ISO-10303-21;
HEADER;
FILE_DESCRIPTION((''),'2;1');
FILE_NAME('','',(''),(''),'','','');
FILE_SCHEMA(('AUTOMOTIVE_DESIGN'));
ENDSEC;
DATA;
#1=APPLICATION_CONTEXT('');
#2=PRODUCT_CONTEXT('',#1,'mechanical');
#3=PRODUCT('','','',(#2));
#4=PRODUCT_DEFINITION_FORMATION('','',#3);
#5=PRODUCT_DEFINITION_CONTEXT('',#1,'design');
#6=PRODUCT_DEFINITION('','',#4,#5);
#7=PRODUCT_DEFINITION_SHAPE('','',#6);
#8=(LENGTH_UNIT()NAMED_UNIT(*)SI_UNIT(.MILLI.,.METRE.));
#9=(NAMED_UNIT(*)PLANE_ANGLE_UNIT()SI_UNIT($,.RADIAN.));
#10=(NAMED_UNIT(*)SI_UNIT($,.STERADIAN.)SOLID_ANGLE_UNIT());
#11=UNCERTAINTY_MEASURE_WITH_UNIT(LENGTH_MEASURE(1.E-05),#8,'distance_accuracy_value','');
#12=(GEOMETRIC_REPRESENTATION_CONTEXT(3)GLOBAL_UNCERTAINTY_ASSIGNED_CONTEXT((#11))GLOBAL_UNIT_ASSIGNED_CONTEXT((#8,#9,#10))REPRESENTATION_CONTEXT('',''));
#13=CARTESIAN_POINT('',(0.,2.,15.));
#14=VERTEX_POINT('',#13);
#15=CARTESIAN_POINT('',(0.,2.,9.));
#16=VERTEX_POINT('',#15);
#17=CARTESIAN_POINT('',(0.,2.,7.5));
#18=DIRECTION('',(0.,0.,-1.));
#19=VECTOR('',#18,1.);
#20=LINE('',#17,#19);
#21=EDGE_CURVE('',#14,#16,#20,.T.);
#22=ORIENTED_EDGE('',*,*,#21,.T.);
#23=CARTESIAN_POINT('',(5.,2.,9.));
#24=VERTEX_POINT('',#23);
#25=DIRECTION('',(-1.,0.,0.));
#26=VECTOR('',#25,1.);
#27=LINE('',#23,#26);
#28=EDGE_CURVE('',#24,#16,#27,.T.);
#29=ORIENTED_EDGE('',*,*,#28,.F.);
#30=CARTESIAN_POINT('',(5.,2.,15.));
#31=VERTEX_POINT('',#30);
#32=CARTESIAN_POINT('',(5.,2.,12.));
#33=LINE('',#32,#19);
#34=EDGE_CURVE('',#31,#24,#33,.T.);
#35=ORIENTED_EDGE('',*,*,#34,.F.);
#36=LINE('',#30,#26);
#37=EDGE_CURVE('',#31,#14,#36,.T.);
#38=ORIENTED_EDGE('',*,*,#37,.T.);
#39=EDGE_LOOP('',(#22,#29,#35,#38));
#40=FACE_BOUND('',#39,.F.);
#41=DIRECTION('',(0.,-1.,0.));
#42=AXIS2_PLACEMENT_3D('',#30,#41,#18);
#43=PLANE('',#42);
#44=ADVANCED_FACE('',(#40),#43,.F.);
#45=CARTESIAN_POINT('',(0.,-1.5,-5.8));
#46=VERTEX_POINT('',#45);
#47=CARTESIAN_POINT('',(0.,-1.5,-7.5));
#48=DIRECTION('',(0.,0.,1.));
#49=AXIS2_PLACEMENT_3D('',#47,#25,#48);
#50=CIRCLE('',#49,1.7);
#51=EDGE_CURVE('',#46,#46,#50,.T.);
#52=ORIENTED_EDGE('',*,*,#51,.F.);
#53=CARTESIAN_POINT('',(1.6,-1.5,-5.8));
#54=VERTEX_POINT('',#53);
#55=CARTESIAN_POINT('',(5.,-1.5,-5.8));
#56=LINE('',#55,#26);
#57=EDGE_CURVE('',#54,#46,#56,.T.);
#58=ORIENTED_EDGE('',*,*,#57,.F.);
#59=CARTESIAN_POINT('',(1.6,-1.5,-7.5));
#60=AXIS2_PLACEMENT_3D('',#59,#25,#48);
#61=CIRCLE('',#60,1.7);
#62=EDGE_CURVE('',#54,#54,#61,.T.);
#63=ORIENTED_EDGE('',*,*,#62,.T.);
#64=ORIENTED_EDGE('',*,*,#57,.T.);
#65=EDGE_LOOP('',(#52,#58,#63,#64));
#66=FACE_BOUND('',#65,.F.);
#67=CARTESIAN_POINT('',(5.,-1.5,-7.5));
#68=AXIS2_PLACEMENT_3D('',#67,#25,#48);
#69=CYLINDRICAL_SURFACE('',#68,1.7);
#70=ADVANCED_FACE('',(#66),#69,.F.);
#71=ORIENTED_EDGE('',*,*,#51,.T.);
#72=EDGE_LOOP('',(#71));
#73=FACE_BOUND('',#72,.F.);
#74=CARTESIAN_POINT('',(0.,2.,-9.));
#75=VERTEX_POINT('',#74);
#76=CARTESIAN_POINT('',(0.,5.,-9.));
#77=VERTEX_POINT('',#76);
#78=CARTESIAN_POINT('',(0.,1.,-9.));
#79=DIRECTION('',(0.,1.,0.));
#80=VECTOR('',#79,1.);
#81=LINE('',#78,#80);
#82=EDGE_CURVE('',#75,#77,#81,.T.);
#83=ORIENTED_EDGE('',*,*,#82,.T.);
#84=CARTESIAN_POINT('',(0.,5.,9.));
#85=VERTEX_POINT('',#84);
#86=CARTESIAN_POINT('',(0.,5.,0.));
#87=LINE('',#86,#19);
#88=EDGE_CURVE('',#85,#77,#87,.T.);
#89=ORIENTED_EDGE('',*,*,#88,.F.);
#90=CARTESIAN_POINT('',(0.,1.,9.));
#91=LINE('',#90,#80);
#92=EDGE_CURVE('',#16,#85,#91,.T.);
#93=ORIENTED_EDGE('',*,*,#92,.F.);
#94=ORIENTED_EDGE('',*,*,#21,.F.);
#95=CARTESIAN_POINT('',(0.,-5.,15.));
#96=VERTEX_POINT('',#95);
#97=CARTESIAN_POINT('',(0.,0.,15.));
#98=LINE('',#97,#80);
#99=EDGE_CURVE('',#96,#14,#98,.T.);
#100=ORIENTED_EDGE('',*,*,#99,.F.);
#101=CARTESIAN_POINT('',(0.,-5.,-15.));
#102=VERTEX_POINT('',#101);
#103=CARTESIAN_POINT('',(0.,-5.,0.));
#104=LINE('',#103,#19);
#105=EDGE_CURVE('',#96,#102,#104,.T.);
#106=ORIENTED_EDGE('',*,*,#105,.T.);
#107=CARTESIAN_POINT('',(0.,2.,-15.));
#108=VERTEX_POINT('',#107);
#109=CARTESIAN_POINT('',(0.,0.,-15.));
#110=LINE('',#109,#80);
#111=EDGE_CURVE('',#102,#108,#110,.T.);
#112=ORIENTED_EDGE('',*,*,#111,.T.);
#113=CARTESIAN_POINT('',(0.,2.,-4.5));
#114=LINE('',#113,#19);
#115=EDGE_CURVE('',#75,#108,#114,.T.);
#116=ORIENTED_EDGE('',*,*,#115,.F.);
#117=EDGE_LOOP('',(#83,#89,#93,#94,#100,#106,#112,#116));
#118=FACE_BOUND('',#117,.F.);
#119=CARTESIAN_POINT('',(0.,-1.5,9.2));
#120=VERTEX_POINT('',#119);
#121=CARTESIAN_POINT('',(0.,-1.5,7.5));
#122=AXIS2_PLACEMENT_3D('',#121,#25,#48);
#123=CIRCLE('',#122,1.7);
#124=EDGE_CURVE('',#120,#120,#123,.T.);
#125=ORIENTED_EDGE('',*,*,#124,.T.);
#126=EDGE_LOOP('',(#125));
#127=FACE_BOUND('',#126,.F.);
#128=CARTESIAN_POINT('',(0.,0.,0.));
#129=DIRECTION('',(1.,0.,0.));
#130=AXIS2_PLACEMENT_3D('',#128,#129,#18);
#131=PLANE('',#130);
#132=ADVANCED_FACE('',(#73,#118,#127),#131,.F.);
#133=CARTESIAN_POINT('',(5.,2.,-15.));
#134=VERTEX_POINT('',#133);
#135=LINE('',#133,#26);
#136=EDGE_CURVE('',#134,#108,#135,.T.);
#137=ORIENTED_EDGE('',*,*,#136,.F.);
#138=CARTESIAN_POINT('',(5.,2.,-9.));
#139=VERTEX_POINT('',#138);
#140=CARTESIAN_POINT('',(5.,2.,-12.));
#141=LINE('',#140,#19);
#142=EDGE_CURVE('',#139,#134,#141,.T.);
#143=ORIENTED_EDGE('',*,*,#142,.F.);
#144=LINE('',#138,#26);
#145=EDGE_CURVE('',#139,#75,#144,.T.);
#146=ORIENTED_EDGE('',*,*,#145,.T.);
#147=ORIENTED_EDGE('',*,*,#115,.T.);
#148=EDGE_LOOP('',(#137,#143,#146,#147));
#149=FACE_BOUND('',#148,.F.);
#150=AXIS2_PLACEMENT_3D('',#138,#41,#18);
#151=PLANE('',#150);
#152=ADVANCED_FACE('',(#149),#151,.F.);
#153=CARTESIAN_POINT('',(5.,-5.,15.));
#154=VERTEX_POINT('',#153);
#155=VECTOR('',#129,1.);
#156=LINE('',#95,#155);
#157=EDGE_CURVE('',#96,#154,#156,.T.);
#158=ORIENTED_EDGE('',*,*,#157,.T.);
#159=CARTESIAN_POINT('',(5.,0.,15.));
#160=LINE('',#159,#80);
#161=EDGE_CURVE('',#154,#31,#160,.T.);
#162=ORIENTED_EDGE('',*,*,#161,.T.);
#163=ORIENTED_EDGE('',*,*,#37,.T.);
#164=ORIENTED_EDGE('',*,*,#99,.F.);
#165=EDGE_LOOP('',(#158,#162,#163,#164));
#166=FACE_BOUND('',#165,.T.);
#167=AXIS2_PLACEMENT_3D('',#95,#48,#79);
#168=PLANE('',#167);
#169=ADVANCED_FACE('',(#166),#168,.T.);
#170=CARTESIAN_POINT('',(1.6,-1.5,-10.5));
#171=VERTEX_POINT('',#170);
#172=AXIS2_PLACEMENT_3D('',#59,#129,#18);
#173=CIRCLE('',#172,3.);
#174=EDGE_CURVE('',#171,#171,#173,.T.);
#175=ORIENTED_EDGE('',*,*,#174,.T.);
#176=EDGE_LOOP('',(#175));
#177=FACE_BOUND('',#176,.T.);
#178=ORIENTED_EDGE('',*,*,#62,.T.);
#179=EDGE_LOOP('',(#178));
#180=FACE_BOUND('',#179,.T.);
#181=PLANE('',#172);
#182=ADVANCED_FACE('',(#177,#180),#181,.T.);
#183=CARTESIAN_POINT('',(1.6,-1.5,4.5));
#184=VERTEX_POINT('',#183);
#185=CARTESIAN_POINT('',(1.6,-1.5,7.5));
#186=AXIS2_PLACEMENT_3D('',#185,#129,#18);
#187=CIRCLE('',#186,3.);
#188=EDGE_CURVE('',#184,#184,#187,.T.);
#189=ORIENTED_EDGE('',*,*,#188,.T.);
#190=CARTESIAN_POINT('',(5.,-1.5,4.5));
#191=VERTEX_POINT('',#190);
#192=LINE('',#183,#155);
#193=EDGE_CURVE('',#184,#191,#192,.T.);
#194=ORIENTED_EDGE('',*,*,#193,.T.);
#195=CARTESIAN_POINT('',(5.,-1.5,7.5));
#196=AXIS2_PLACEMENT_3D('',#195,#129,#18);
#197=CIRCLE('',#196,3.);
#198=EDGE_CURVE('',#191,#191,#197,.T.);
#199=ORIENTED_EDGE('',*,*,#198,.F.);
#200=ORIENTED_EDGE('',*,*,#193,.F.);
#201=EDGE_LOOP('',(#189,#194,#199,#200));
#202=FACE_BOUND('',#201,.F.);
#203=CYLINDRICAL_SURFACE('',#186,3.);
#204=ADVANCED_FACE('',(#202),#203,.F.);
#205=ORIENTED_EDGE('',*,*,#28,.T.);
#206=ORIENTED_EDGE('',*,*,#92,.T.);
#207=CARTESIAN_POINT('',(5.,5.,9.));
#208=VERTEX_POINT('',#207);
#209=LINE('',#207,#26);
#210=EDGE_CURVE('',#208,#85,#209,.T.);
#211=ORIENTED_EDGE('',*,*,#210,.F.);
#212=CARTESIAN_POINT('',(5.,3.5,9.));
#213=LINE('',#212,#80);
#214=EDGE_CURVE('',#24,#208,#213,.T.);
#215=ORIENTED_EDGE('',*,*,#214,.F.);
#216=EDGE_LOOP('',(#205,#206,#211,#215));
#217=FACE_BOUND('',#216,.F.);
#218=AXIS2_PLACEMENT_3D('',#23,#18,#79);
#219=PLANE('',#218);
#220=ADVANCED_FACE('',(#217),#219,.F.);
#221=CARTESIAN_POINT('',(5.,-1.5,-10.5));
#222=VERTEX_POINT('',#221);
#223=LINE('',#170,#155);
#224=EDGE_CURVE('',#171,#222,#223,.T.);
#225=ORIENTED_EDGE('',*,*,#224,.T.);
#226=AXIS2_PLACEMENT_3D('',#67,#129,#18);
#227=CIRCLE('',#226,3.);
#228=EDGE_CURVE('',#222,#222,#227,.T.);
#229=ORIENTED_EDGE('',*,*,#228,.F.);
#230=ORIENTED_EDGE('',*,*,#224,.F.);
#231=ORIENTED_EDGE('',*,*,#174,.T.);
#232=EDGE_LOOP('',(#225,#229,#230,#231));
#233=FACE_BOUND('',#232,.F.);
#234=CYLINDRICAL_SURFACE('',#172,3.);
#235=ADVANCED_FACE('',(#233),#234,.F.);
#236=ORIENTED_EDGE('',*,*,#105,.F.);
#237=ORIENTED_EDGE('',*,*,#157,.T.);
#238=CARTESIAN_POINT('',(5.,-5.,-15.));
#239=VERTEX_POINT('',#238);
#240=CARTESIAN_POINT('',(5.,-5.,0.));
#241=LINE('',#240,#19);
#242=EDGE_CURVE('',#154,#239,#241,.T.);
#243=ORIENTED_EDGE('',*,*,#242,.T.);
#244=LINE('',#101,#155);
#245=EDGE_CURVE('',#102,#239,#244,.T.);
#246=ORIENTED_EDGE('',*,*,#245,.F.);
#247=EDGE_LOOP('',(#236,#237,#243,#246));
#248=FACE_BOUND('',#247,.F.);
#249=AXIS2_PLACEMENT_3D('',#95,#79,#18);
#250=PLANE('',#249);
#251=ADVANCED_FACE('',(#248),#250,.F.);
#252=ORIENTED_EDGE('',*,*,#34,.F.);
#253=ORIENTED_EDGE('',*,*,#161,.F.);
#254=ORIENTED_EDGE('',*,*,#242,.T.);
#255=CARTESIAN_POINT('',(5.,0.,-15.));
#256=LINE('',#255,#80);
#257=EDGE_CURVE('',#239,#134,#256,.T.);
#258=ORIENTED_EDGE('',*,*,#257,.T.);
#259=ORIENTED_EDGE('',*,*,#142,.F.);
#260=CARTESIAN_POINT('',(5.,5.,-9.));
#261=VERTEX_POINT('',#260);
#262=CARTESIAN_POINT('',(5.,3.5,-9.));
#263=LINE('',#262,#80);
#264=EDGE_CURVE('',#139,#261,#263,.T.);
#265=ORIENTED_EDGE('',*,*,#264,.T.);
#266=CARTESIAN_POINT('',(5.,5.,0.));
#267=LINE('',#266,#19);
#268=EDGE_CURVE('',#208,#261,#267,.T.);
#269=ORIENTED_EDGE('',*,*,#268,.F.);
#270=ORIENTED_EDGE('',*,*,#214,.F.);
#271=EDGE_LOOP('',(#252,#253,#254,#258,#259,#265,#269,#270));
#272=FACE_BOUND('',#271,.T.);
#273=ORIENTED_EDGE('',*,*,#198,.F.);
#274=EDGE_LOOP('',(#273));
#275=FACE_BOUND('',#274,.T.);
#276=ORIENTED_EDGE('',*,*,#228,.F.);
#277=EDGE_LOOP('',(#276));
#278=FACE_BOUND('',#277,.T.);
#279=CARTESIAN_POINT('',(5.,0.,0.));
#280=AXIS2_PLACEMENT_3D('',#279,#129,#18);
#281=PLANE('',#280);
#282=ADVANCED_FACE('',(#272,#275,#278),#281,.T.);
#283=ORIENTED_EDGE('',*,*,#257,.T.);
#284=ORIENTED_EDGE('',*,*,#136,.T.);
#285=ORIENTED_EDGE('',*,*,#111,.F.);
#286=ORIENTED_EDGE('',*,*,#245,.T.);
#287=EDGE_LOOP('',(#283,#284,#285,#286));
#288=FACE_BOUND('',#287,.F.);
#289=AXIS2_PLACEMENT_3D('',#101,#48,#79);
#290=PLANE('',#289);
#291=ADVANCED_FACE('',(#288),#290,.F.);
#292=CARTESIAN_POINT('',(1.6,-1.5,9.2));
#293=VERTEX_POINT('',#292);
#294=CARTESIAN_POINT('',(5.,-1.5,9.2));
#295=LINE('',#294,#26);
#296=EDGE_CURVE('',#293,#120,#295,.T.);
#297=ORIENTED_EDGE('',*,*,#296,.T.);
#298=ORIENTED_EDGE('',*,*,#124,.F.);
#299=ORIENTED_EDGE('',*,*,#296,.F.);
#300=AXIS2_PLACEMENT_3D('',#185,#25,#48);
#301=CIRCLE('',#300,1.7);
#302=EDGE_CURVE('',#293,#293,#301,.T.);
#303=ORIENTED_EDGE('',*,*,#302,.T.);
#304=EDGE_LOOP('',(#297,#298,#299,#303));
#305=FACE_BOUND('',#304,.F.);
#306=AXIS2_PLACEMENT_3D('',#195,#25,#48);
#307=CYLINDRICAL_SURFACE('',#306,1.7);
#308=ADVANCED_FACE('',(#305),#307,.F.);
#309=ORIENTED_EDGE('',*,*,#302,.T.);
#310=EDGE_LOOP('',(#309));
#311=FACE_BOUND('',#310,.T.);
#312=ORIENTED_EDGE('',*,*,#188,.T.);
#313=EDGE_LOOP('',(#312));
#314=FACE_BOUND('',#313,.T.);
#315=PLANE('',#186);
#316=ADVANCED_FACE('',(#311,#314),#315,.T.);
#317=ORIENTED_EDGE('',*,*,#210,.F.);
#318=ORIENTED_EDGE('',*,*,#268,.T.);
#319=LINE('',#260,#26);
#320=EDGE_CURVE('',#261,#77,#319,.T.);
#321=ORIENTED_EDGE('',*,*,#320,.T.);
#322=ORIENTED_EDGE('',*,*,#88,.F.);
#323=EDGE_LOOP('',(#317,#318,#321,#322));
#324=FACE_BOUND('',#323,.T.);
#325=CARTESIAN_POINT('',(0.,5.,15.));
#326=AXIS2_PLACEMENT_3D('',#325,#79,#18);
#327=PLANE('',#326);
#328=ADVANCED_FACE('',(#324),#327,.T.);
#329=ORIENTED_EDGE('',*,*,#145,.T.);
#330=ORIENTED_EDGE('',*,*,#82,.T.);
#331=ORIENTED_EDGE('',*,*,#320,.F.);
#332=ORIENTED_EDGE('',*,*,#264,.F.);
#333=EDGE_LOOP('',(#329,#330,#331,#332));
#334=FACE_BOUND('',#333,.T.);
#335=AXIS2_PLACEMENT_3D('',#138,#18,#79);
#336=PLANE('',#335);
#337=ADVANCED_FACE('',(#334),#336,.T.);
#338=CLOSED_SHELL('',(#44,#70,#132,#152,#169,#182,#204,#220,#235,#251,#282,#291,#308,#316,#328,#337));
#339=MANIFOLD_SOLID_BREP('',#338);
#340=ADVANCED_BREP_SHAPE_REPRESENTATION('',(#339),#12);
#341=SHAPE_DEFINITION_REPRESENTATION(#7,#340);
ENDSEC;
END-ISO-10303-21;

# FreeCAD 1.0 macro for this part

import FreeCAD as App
import Part
import Sketcher

doc = App.newDocument("Part")
params = doc.addObject("Spreadsheet::Sheet", "Params")
for row, (alias, value) in enumerate([
    ("sketch1_width", "10 mm"),
    ("sketch1_height", "30 mm"),
    ("pad1_length", "5 mm"),
    ("sketch2_width", "3 mm"),
    ("sketch2_height", "6 mm"),
    ("sketch3_diameter", "3.4 mm"),
    ("hole_diameter", "3.4 mm"),
    ("hole_cbore_diameter", "6 mm"),
    ("hole_cbore_depth", "3.4 mm"),
], start=1):
    params.set(f"A{row}", alias)
    params.set(f"B{row}", "=" + value)
    params.setAlias(f"B{row}", alias)

body = doc.addObject("PartDesign::Body", "Body")

# Sketch on YZ plane
sketch1 = body.newObject("Sketcher::SketchObject", "Sketch")
sketch1.AttachmentSupport = (doc.getObject("YZ_Plane"), [""])
sketch1.MapMode = "FlatFace"
sketch1.addGeometry(Part.LineSegment(App.Vector(5, 15, 0), App.Vector(-5, 15, 0)), False)
sketch1.addGeometry(Part.LineSegment(App.Vector(-5, 15, 0), App.Vector(-5, -15, 0)), False)
sketch1.addGeometry(Part.LineSegment(App.Vector(-5, -15, 0), App.Vector(5, -15, 0)), False)
sketch1.addGeometry(Part.LineSegment(App.Vector(5, -15, 0), App.Vector(5, 15, 0)), False)
sketch1.addConstraint(Sketcher.Constraint("Coincident", 0, 2, 1, 1))
sketch1.addConstraint(Sketcher.Constraint("Coincident", 1, 2, 2, 1))
sketch1.addConstraint(Sketcher.Constraint("Coincident", 2, 2, 3, 1))
sketch1.addConstraint(Sketcher.Constraint("Coincident", 3, 2, 0, 1))
sketch1.addConstraint(Sketcher.Constraint("Horizontal", 0))
sketch1.addConstraint(Sketcher.Constraint("Vertical", 1))
sketch1.addConstraint(Sketcher.Constraint("Horizontal", 2))
sketch1.addConstraint(Sketcher.Constraint("Vertical", 3))
sketch1.addConstraint(Sketcher.Constraint("Symmetric", 0, 2, 2, 2, -1, 1))
sketch1.addConstraint(Sketcher.Constraint("DistanceX", 0, 2, 0, 1, 10.0))
sketch1.addConstraint(Sketcher.Constraint("DistanceY", 1, 2, 1, 1, 30.0))
sketch1.setExpression("Constraints[9]", "Params.sketch1_width")
sketch1.setExpression("Constraints[10]", "Params.sketch1_height")
pad1 = body.newObject("PartDesign::Pad", "Pad")
pad1.Profile = sketch1
pad1.setExpression("Length", "Params.pad1_length")

# Sketch on YZ plane
sketch2 = body.newObject("Sketcher::SketchObject", "Sketch001")
sketch2.AttachmentSupport = (doc.getObject("YZ_Plane"), [""])
sketch2.MapMode = "FlatFace"
sketch2.AttachmentOffset = App.Placement(App.Vector(0, 0, 5), App.Rotation())
sketch2.addGeometry(Part.LineSegment(App.Vector(5, -9, 0), App.Vector(2, -9, 0)), False)
sketch2.addGeometry(Part.LineSegment(App.Vector(2, -9, 0), App.Vector(2, -15, 0)), False)
sketch2.addGeometry(Part.LineSegment(App.Vector(2, -15, 0), App.Vector(5, -15, 0)), False)
sketch2.addGeometry(Part.LineSegment(App.Vector(5, -15, 0), App.Vector(5, -9, 0)), False)
sketch2.addGeometry(Part.LineSegment(App.Vector(5, 15, 0), App.Vector(2, 15, 0)), False)
sketch2.addGeometry(Part.LineSegment(App.Vector(2, 15, 0), App.Vector(2, 9, 0)), False)
sketch2.addGeometry(Part.LineSegment(App.Vector(2, 9, 0), App.Vector(5, 9, 0)), False)
sketch2.addGeometry(Part.LineSegment(App.Vector(5, 9, 0), App.Vector(5, 15, 0)), False)
sketch2.addConstraint(Sketcher.Constraint("Coincident", 0, 2, 1, 1))
sketch2.addConstraint(Sketcher.Constraint("Coincident", 1, 2, 2, 1))
sketch2.addConstraint(Sketcher.Constraint("Coincident", 2, 2, 3, 1))
sketch2.addConstraint(Sketcher.Constraint("Coincident", 3, 2, 0, 1))
sketch2.addConstraint(Sketcher.Constraint("Coincident", 4, 2, 5, 1))
sketch2.addConstraint(Sketcher.Constraint("Coincident", 5, 2, 6, 1))
sketch2.addConstraint(Sketcher.Constraint("Coincident", 6, 2, 7, 1))
sketch2.addConstraint(Sketcher.Constraint("Coincident", 7, 2, 4, 1))
sketch2.addConstraint(Sketcher.Constraint("Horizontal", 0))
sketch2.addConstraint(Sketcher.Constraint("Vertical", 1))
sketch2.addConstraint(Sketcher.Constraint("Horizontal", 2))
sketch2.addConstraint(Sketcher.Constraint("Vertical", 3))
sketch2.addConstraint(Sketcher.Constraint("Horizontal", 4))
sketch2.addConstraint(Sketcher.Constraint("Vertical", 5))
sketch2.addConstraint(Sketcher.Constraint("Horizontal", 6))
sketch2.addConstraint(Sketcher.Constraint("Vertical", 7))
sketch2.addConstraint(Sketcher.Constraint("Symmetric", 1, 2, 4, 2, -1))
sketch2.addConstraint(Sketcher.Constraint("Symmetric", 3, 2, 6, 2, -1))
sketch2.addConstraint(Sketcher.Constraint("DistanceX", 0, 2, 0, 1, 3.0))
sketch2.addConstraint(Sketcher.Constraint("DistanceY", 1, 2, 1, 1, 6.0))
sketch2.addConstraint(Sketcher.Constraint("DistanceX", -1, 1, 0, 2, 2.0))
sketch2.addConstraint(Sketcher.Constraint("DistanceY", 0, 2, -1, 1, 9.0))
sketch2.setExpression("Constraints[18]", "Params.sketch2_width")
sketch2.setExpression("Constraints[19]", "Params.sketch2_height")
pocket1 = body.newObject("PartDesign::Pocket", "Pocket")
pocket1.Profile = sketch2
pocket1.Type = "ThroughAll"

# Sketch on YZ plane
sketch3 = body.newObject("Sketcher::SketchObject", "Sketch002")
sketch3.AttachmentSupport = (doc.getObject("YZ_Plane"), [""])
sketch3.MapMode = "FlatFace"
sketch3.AttachmentOffset = App.Placement(App.Vector(0, 0, 5), App.Rotation())
sketch3.addGeometry(Part.Circle(App.Vector(-1.5, 7.5, 0), App.Vector(0, 0, 1), 1.7), False)
sketch3.addGeometry(Part.Circle(App.Vector(-1.5, -7.5, 0), App.Vector(0, 0, 1), 1.7), False)
sketch3.addConstraint(Sketcher.Constraint("Equal", 0, 1))
sketch3.addConstraint(Sketcher.Constraint("Symmetric", 0, 3, 1, 3, -1))
sketch3.addConstraint(Sketcher.Constraint("Diameter", 0, 3.4))
sketch3.addConstraint(Sketcher.Constraint("DistanceY", 1, 3, 0, 3, 15.0))
sketch3.addConstraint(Sketcher.Constraint("DistanceX", 0, 3, -1, 1, 1.5))
sketch3.setExpression("Constraints[2]", "Params.sketch3_diameter")
doc.recompute()
hole = body.newObject("PartDesign::Hole", "Hole")
hole.Profile = sketch3
hole.ThreadType = "None"
hole.setExpression("Diameter", "Params.hole_diameter")
hole.DepthType = "ThroughAll"
hole.HoleCutType = "Counterbore"
hole.setExpression("HoleCutDiameter", "Params.hole_cbore_diameter")
hole.setExpression("HoleCutDepth", "Params.hole_cbore_depth")

doc.recompute()
